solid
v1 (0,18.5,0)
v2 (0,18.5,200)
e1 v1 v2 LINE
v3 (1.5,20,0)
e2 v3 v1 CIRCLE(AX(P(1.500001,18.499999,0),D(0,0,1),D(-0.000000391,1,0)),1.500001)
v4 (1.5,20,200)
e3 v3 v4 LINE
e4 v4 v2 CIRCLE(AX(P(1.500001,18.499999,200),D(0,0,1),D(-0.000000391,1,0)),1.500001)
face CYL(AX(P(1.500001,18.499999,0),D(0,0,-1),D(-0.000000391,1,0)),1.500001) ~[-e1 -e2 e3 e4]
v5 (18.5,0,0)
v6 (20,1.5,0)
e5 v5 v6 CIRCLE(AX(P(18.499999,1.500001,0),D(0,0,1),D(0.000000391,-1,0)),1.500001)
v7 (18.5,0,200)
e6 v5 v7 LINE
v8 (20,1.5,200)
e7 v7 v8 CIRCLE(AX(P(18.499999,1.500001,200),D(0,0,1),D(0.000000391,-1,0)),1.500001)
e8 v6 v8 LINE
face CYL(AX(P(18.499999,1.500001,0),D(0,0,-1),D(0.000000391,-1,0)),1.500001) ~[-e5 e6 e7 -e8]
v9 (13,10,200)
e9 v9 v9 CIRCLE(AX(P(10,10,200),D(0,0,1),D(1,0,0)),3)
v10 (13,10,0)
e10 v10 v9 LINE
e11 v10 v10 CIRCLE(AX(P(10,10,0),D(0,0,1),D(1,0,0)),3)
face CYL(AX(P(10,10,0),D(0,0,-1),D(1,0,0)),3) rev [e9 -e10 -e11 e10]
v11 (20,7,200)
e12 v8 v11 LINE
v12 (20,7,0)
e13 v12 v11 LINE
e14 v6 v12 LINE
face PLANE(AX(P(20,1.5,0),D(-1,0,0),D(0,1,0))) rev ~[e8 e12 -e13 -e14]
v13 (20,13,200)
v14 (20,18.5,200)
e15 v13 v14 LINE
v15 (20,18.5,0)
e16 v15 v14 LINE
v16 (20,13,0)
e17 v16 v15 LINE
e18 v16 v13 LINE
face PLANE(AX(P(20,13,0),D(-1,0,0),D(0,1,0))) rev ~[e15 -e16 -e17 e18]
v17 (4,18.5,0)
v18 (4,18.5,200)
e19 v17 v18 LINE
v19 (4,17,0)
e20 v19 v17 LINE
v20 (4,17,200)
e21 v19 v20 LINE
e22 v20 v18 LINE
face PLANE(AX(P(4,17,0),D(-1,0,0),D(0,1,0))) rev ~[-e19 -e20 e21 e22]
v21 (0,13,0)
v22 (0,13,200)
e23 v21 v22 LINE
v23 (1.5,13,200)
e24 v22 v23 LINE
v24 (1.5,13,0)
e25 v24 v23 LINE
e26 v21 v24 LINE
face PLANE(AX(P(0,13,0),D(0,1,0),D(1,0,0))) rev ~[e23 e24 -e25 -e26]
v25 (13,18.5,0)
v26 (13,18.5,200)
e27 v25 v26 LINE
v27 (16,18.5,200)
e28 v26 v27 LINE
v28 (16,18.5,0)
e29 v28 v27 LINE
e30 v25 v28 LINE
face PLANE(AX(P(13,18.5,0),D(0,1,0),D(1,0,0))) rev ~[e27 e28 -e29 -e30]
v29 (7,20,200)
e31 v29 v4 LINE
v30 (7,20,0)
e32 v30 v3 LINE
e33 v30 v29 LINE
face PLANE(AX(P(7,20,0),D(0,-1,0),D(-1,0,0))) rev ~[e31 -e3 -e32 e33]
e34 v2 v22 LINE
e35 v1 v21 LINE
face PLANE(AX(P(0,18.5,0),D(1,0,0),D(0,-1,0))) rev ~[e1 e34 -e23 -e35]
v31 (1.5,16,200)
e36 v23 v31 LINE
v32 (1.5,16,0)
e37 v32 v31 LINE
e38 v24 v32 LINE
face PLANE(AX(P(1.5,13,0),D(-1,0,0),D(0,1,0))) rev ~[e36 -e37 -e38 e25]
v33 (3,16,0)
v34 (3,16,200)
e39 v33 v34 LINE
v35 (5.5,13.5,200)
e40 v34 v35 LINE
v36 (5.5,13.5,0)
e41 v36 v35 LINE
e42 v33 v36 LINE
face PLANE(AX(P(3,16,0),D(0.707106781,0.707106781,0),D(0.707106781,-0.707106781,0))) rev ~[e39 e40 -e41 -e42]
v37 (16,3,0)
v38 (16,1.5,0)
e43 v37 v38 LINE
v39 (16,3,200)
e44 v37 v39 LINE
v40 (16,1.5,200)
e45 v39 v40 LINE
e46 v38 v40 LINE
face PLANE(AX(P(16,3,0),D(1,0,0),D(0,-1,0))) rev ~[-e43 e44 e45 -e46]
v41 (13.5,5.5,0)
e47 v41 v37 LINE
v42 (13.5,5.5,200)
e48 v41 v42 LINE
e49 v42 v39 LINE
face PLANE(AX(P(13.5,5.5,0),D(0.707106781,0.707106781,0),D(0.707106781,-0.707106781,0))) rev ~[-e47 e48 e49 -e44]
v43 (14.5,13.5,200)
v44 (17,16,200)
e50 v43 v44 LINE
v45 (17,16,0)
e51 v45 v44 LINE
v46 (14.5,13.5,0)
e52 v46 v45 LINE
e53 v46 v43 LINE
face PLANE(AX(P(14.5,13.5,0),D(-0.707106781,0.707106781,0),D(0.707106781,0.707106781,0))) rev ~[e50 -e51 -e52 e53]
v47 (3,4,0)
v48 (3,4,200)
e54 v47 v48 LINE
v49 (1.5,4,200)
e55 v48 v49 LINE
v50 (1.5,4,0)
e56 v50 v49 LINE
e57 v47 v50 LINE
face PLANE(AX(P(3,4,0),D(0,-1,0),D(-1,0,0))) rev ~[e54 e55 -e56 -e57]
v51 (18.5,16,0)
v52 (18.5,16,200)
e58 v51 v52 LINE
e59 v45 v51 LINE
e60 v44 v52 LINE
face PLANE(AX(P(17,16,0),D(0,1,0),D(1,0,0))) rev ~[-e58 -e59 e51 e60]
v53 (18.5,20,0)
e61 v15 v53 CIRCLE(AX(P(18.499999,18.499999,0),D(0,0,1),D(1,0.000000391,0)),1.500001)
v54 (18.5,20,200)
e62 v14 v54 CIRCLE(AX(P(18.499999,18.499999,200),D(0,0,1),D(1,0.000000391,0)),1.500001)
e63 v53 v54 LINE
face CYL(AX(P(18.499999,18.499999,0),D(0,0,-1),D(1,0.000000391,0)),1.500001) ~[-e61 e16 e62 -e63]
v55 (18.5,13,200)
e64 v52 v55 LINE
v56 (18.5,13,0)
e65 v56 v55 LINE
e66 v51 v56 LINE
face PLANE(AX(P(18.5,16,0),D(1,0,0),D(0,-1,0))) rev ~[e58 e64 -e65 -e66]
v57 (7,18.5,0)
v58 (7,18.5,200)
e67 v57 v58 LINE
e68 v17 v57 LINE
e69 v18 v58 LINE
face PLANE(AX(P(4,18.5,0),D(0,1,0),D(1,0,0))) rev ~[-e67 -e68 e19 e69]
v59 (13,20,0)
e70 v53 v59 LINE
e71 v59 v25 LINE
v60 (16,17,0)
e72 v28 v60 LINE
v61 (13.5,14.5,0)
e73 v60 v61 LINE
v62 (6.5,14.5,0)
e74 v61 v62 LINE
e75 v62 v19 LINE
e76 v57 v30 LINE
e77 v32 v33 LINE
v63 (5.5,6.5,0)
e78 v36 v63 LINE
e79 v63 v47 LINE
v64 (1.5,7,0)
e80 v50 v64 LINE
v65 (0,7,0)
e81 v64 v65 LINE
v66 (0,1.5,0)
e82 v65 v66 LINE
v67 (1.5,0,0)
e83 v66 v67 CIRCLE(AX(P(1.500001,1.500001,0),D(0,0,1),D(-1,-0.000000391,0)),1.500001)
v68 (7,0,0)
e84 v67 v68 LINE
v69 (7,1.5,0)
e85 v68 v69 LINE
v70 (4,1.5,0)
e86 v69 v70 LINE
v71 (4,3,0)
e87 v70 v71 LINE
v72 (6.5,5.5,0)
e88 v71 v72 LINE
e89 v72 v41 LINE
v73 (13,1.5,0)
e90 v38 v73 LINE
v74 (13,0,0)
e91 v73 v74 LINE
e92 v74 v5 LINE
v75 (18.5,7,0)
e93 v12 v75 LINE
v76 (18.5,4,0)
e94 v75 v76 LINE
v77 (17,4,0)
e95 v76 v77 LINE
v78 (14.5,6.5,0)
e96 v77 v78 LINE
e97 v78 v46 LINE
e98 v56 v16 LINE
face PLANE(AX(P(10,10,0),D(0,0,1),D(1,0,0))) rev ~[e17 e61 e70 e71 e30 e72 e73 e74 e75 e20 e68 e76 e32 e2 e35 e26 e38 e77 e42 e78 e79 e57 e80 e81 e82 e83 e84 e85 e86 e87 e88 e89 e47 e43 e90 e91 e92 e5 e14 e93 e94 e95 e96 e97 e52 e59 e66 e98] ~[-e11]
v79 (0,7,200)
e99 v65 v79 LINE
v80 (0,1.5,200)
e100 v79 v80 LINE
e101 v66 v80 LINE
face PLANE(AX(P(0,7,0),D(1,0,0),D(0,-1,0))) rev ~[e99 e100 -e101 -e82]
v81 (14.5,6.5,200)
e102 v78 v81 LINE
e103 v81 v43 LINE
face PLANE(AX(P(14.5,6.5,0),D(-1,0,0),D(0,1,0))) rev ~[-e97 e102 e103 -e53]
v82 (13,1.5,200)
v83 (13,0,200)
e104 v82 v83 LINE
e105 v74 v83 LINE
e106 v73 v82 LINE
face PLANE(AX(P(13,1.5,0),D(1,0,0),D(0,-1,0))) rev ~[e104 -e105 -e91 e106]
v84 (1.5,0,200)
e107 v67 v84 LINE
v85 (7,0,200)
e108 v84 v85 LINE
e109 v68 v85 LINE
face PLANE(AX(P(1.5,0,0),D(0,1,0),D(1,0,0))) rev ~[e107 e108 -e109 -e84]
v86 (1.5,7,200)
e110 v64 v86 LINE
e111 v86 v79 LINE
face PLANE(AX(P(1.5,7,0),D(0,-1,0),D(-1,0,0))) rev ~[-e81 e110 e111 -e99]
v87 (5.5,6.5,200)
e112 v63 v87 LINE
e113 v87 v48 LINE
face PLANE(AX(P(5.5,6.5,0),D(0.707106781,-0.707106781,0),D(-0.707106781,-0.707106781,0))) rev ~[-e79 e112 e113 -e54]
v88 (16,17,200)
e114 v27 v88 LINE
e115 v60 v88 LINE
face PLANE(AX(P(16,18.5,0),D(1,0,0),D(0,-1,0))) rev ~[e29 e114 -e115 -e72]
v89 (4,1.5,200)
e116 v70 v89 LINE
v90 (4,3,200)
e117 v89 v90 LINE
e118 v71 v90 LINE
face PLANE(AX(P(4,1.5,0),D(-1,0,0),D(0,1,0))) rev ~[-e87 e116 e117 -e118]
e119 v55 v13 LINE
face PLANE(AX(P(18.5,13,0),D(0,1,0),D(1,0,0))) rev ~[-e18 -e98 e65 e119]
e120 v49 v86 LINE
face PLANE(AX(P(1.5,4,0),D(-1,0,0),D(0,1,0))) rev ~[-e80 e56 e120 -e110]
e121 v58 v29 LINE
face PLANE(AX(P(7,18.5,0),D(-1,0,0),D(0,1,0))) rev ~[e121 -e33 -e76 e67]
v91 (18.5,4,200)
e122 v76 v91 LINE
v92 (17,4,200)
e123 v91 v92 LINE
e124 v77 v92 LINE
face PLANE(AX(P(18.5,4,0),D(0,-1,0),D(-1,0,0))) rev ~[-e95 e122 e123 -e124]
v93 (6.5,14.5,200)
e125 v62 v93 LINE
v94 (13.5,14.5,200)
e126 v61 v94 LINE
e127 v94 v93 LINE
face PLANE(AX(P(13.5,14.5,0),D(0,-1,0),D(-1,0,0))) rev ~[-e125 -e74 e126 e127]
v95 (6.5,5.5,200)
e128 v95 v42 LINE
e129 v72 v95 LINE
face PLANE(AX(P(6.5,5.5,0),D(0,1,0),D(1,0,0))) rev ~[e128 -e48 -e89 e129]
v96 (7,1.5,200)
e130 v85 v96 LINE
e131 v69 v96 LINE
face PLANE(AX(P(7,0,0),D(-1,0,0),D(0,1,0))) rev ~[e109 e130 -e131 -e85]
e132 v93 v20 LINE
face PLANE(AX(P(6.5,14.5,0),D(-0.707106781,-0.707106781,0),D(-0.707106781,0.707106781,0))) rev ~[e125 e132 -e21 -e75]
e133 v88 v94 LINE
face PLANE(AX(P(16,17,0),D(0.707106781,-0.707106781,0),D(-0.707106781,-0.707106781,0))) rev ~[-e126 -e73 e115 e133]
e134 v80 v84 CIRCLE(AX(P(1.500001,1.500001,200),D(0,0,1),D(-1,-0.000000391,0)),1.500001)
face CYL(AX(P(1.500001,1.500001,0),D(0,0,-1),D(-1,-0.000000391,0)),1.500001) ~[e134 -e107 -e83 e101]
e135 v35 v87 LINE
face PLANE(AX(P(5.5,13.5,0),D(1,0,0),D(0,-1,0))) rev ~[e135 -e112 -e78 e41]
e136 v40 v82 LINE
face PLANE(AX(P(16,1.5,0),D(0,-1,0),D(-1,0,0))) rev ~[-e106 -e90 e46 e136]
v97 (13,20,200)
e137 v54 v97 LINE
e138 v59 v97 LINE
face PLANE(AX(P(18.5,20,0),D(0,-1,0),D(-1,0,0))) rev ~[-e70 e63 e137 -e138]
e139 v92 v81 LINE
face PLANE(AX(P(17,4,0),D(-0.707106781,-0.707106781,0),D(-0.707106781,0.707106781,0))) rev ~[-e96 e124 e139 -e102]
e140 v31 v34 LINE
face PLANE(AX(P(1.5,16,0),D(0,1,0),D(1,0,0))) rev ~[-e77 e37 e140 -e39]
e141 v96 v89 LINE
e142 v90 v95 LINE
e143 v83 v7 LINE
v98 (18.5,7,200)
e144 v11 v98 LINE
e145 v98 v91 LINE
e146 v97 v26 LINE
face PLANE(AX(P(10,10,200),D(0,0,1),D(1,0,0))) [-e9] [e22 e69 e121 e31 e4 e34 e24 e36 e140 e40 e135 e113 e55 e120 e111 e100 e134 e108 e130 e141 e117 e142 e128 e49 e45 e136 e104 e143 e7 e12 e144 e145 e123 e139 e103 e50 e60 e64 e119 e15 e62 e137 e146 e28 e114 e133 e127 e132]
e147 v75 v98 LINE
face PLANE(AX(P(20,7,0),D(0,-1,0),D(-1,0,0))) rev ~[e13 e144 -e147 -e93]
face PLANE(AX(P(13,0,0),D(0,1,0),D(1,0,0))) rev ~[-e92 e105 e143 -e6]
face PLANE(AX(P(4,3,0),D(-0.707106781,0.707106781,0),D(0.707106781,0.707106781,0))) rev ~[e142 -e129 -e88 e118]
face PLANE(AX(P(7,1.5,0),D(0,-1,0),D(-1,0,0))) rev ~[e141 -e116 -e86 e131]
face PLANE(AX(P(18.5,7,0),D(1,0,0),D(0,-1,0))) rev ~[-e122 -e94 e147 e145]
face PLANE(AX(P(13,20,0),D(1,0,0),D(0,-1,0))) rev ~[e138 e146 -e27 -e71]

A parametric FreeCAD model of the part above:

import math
import FreeCAD as App
import Part
import Sketcher
from FreeCAD import Vector

doc = App.newDocument("Part")
body = doc.addObject("PartDesign::Body", "Body")

# Sketch on XY plane
sketch1 = doc.addObject("Sketcher::SketchObject", "Sketch")
body.addObject(sketch1)
sketch1.AttachmentSupport = (doc.XY_Plane, [""])
sketch1.MapMode = "FlatFace"
sketch1.addGeometry(Part.ArcOfCircle(Part.Circle(Vector(1.500001, 1.500001, 0), Vector(0, 0, 1), 1.500001), math.radians(-179.999978), math.radians(-90.000022)), False)
sketch1.addGeometry(Part.LineSegment(Vector(1.5, 0, 0), Vector(7, 0, 0)), False)
sketch1.addGeometry(Part.LineSegment(Vector(7, 0, 0), Vector(7, 1.5, 0)), False)
sketch1.addGeometry(Part.LineSegment(Vector(7, 1.5, 0), Vector(4, 1.5, 0)), False)
sketch1.addGeometry(Part.LineSegment(Vector(4, 1.5, 0), Vector(4, 3, 0)), False)
sketch1.addGeometry(Part.LineSegment(Vector(4, 3, 0), Vector(6.5, 5.5, 0)), False)
sketch1.addGeometry(Part.LineSegment(Vector(6.5, 5.5, 0), Vector(13.5, 5.5, 0)), False)
sketch1.addGeometry(Part.LineSegment(Vector(13.5, 5.5, 0), Vector(16, 3, 0)), False)
sketch1.addGeometry(Part.LineSegment(Vector(16, 3, 0), Vector(16, 1.5, 0)), False)
sketch1.addGeometry(Part.LineSegment(Vector(16, 1.5, 0), Vector(13, 1.5, 0)), False)
sketch1.addGeometry(Part.LineSegment(Vector(13, 1.5, 0), Vector(13, 0, 0)), False)
sketch1.addGeometry(Part.LineSegment(Vector(13, 0, 0), Vector(18.5, 0, 0)), False)
sketch1.addGeometry(Part.ArcOfCircle(Part.Circle(Vector(18.499999, 1.500001, 0), Vector(0, 0, 1), 1.500001), math.radians(-89.999978), math.radians(-0.000022)), False)
sketch1.addGeometry(Part.LineSegment(Vector(20, 1.5, 0), Vector(20, 7, 0)), False)
sketch1.addGeometry(Part.LineSegment(Vector(20, 7, 0), Vector(18.5, 7, 0)), False)
sketch1.addGeometry(Part.LineSegment(Vector(18.5, 7, 0), Vector(18.5, 4, 0)), False)
sketch1.addGeometry(Part.LineSegment(Vector(18.5, 4, 0), Vector(17, 4, 0)), False)
sketch1.addGeometry(Part.LineSegment(Vector(17, 4, 0), Vector(14.5, 6.5, 0)), False)
sketch1.addGeometry(Part.LineSegment(Vector(14.5, 6.5, 0), Vector(14.5, 13.5, 0)), False)
sketch1.addGeometry(Part.LineSegment(Vector(14.5, 13.5, 0), Vector(17, 16, 0)), False)
sketch1.addGeometry(Part.LineSegment(Vector(17, 16, 0), Vector(18.5, 16, 0)), False)
sketch1.addGeometry(Part.LineSegment(Vector(18.5, 16, 0), Vector(18.5, 13, 0)), False)
sketch1.addGeometry(Part.LineSegment(Vector(18.5, 13, 0), Vector(20, 13, 0)), False)
sketch1.addGeometry(Part.LineSegment(Vector(20, 13, 0), Vector(20, 18.5, 0)), False)
sketch1.addGeometry(Part.ArcOfCircle(Part.Circle(Vector(18.499999, 18.499999, 0), Vector(0, 0, 1), 1.500001), math.radians(0.000022), math.radians(89.999978)), False)
sketch1.addGeometry(Part.LineSegment(Vector(18.5, 20, 0), Vector(13, 20, 0)), False)
sketch1.addGeometry(Part.LineSegment(Vector(13, 20, 0), Vector(13, 18.5, 0)), False)
sketch1.addGeometry(Part.LineSegment(Vector(13, 18.5, 0), Vector(16, 18.5, 0)), False)
sketch1.addGeometry(Part.LineSegment(Vector(16, 18.5, 0), Vector(16, 17, 0)), False)
sketch1.addGeometry(Part.LineSegment(Vector(16, 17, 0), Vector(13.5, 14.5, 0)), False)
sketch1.addGeometry(Part.LineSegment(Vector(13.5, 14.5, 0), Vector(6.5, 14.5, 0)), False)
sketch1.addGeometry(Part.LineSegment(Vector(6.5, 14.5, 0), Vector(4, 17, 0)), False)
sketch1.addGeometry(Part.LineSegment(Vector(4, 17, 0), Vector(4, 18.5, 0)), False)
sketch1.addGeometry(Part.LineSegment(Vector(4, 18.5, 0), Vector(7, 18.5, 0)), False)
sketch1.addGeometry(Part.LineSegment(Vector(7, 18.5, 0), Vector(7, 20, 0)), False)
sketch1.addGeometry(Part.LineSegment(Vector(7, 20, 0), Vector(1.5, 20, 0)), False)
sketch1.addGeometry(Part.ArcOfCircle(Part.Circle(Vector(1.500001, 18.499999, 0), Vector(0, 0, 1), 1.500001), math.radians(90.000022), math.radians(179.999978)), False)
sketch1.addGeometry(Part.LineSegment(Vector(0, 18.5, 0), Vector(0, 13, 0)), False)
sketch1.addGeometry(Part.LineSegment(Vector(0, 13, 0), Vector(1.5, 13, 0)), False)
sketch1.addGeometry(Part.LineSegment(Vector(1.5, 13, 0), Vector(1.5, 16, 0)), False)
sketch1.addGeometry(Part.LineSegment(Vector(1.5, 16, 0), Vector(3, 16, 0)), False)
sketch1.addGeometry(Part.LineSegment(Vector(3, 16, 0), Vector(5.5, 13.5, 0)), False)
sketch1.addGeometry(Part.LineSegment(Vector(5.5, 13.5, 0), Vector(5.5, 6.5, 0)), False)
sketch1.addGeometry(Part.LineSegment(Vector(5.5, 6.5, 0), Vector(3, 4, 0)), False)
sketch1.addGeometry(Part.LineSegment(Vector(3, 4, 0), Vector(1.5, 4, 0)), False)
sketch1.addGeometry(Part.LineSegment(Vector(1.5, 4, 0), Vector(1.5, 7, 0)), False)
sketch1.addGeometry(Part.LineSegment(Vector(1.5, 7, 0), Vector(0, 7, 0)), False)
sketch1.addGeometry(Part.LineSegment(Vector(0, 7, 0), Vector(0, 1.5, 0)), False)
sketch1.addGeometry(Part.Circle(Vector(10, 10, 0), Vector(0, 0, 1), 3), False)
sketch1.addConstraint(Sketcher.Constraint("Tangent", 0, 2, 1, 1))
sketch1.addConstraint(Sketcher.Constraint("Coincident", 1, 2, 2, 1))
sketch1.addConstraint(Sketcher.Constraint("Coincident", 2, 2, 3, 1))
sketch1.addConstraint(Sketcher.Constraint("Coincident", 3, 2, 4, 1))
sketch1.addConstraint(Sketcher.Constraint("Coincident", 4, 2, 5, 1))
sketch1.addConstraint(Sketcher.Constraint("Coincident", 5, 2, 6, 1))
sketch1.addConstraint(Sketcher.Constraint("Coincident", 6, 2, 7, 1))
sketch1.addConstraint(Sketcher.Constraint("Coincident", 7, 2, 8, 1))
sketch1.addConstraint(Sketcher.Constraint("Coincident", 8, 2, 9, 1))
sketch1.addConstraint(Sketcher.Constraint("Coincident", 9, 2, 10, 1))
sketch1.addConstraint(Sketcher.Constraint("Coincident", 10, 2, 11, 1))
sketch1.addConstraint(Sketcher.Constraint("Tangent", 11, 2, 12, 1))
sketch1.addConstraint(Sketcher.Constraint("Tangent", 12, 2, 13, 1))
sketch1.addConstraint(Sketcher.Constraint("Coincident", 13, 2, 14, 1))
sketch1.addConstraint(Sketcher.Constraint("Coincident", 14, 2, 15, 1))
sketch1.addConstraint(Sketcher.Constraint("Coincident", 15, 2, 16, 1))
sketch1.addConstraint(Sketcher.Constraint("Coincident", 16, 2, 17, 1))
sketch1.addConstraint(Sketcher.Constraint("Coincident", 17, 2, 18, 1))
sketch1.addConstraint(Sketcher.Constraint("Coincident", 18, 2, 19, 1))
sketch1.addConstraint(Sketcher.Constraint("Coincident", 19, 2, 20, 1))
sketch1.addConstraint(Sketcher.Constraint("Coincident", 20, 2, 21, 1))
sketch1.addConstraint(Sketcher.Constraint("Coincident", 21, 2, 22, 1))
sketch1.addConstraint(Sketcher.Constraint("Coincident", 22, 2, 23, 1))
sketch1.addConstraint(Sketcher.Constraint("Tangent", 23, 2, 24, 1))
sketch1.addConstraint(Sketcher.Constraint("Tangent", 24, 2, 25, 1))
sketch1.addConstraint(Sketcher.Constraint("Coincident", 25, 2, 26, 1))
sketch1.addConstraint(Sketcher.Constraint("Coincident", 26, 2, 27, 1))
sketch1.addConstraint(Sketcher.Constraint("Coincident", 27, 2, 28, 1))
sketch1.addConstraint(Sketcher.Constraint("Coincident", 28, 2, 29, 1))
sketch1.addConstraint(Sketcher.Constraint("Coincident", 29, 2, 30, 1))
sketch1.addConstraint(Sketcher.Constraint("Coincident", 30, 2, 31, 1))
sketch1.addConstraint(Sketcher.Constraint("Coincident", 31, 2, 32, 1))
sketch1.addConstraint(Sketcher.Constraint("Coincident", 32, 2, 33, 1))
sketch1.addConstraint(Sketcher.Constraint("Coincident", 33, 2, 34, 1))
sketch1.addConstraint(Sketcher.Constraint("Coincident", 34, 2, 35, 1))
sketch1.addConstraint(Sketcher.Constraint("Tangent", 35, 2, 36, 1))
sketch1.addConstraint(Sketcher.Constraint("Tangent", 36, 2, 37, 1))
sketch1.addConstraint(Sketcher.Constraint("Coincident", 37, 2, 38, 1))
sketch1.addConstraint(Sketcher.Constraint("Coincident", 38, 2, 39, 1))
sketch1.addConstraint(Sketcher.Constraint("Coincident", 39, 2, 40, 1))
sketch1.addConstraint(Sketcher.Constraint("Coincident", 40, 2, 41, 1))
sketch1.addConstraint(Sketcher.Constraint("Coincident", 41, 2, 42, 1))
sketch1.addConstraint(Sketcher.Constraint("Coincident", 42, 2, 43, 1))
sketch1.addConstraint(Sketcher.Constraint("Coincident", 43, 2, 44, 1))
sketch1.addConstraint(Sketcher.Constraint("Coincident", 44, 2, 45, 1))
sketch1.addConstraint(Sketcher.Constraint("Coincident", 45, 2, 46, 1))
sketch1.addConstraint(Sketcher.Constraint("Coincident", 46, 2, 47, 1))
sketch1.addConstraint(Sketcher.Constraint("Tangent", 47, 2, 0, 1))
sketch1.addConstraint(Sketcher.Constraint("Horizontal", 1))
sketch1.addConstraint(Sketcher.Constraint("Vertical", 2))
sketch1.addConstraint(Sketcher.Constraint("Horizontal", 3))
sketch1.addConstraint(Sketcher.Constraint("Vertical", 4))
sketch1.addConstraint(Sketcher.Constraint("Horizontal", 6))
sketch1.addConstraint(Sketcher.Constraint("Vertical", 8))
sketch1.addConstraint(Sketcher.Constraint("Horizontal", 9))
sketch1.addConstraint(Sketcher.Constraint("Vertical", 10))
sketch1.addConstraint(Sketcher.Constraint("Horizontal", 11))
sketch1.addConstraint(Sketcher.Constraint("Vertical", 13))
sketch1.addConstraint(Sketcher.Constraint("Horizontal", 14))
sketch1.addConstraint(Sketcher.Constraint("Vertical", 15))
sketch1.addConstraint(Sketcher.Constraint("Horizontal", 16))
sketch1.addConstraint(Sketcher.Constraint("Vertical", 18))
sketch1.addConstraint(Sketcher.Constraint("Horizontal", 20))
sketch1.addConstraint(Sketcher.Constraint("Vertical", 21))
sketch1.addConstraint(Sketcher.Constraint("Horizontal", 22))
sketch1.addConstraint(Sketcher.Constraint("Vertical", 23))
sketch1.addConstraint(Sketcher.Constraint("Horizontal", 25))
sketch1.addConstraint(Sketcher.Constraint("Vertical", 26))
sketch1.addConstraint(Sketcher.Constraint("Horizontal", 27))
sketch1.addConstraint(Sketcher.Constraint("Vertical", 28))
sketch1.addConstraint(Sketcher.Constraint("Horizontal", 30))
sketch1.addConstraint(Sketcher.Constraint("Vertical", 32))
sketch1.addConstraint(Sketcher.Constraint("Horizontal", 33))
sketch1.addConstraint(Sketcher.Constraint("Vertical", 34))
sketch1.addConstraint(Sketcher.Constraint("Horizontal", 35))
sketch1.addConstraint(Sketcher.Constraint("Vertical", 37))
sketch1.addConstraint(Sketcher.Constraint("Horizontal", 38))
sketch1.addConstraint(Sketcher.Constraint("Vertical", 39))
sketch1.addConstraint(Sketcher.Constraint("Horizontal", 40))
sketch1.addConstraint(Sketcher.Constraint("Vertical", 42))
sketch1.addConstraint(Sketcher.Constraint("Horizontal", 44))
sketch1.addConstraint(Sketcher.Constraint("Vertical", 45))
sketch1.addConstraint(Sketcher.Constraint("Horizontal", 46))
sketch1.addConstraint(Sketcher.Constraint("Vertical", 47))
sketch1.addConstraint(Sketcher.Constraint("Equal", 0, 12))
sketch1.addConstraint(Sketcher.Constraint("Equal", 12, 24))
sketch1.addConstraint(Sketcher.Constraint("Equal", 24, 36))
sketch1.addConstraint(Sketcher.Constraint("PointOnObject", 0, 2, -1))
sketch1.addConstraint(Sketcher.Constraint("PointOnObject", 10, 2, -1))
sketch1.addConstraint(Sketcher.Constraint("PointOnObject", 36, 2, -2))
sketch1.addConstraint(Sketcher.Constraint("PointOnObject", 46, 2, -2))
sketch1.addConstraint(Sketcher.Constraint("Perpendicular", 5, 7))
sketch1.addConstraint(Sketcher.Constraint("Parallel", 7, 17))
sketch1.addConstraint(Sketcher.Constraint("Perpendicular", 17, 19))
sketch1.addConstraint(Sketcher.Constraint("Parallel", 19, 29))
sketch1.addConstraint(Sketcher.Constraint("Perpendicular", 29, 31))
sketch1.addConstraint(Sketcher.Constraint("Parallel", 31, 41))
sketch1.addConstraint(Sketcher.Constraint("Perpendicular", 41, 43))
sketch1.addConstraint(Sketcher.Constraint("Horizontal", 24, 3, 36, 3))
sketch1.addConstraint(Sketcher.Constraint("Horizontal", 12, 3, 2, 2))
sketch1.addConstraint(Sketcher.Constraint("Horizontal", 4, 2, 7, 2))
sketch1.addConstraint(Sketcher.Constraint("Horizontal", 3, 2, 8, 2))
sketch1.addConstraint(Sketcher.Constraint("Horizontal", 23, 2, 26, 2))
sketch1.addConstraint(Sketcher.Constraint("Horizontal", 28, 2, 31, 2))
sketch1.addConstraint(Sketcher.Constraint("Horizontal", 27, 2, 32, 2))
sketch1.addConstraint(Sketcher.Constraint("Horizontal", 22, 2, 37, 2))
sketch1.addConstraint(Sketcher.Constraint("Horizontal", 20, 2, 39, 2))
sketch1.addConstraint(Sketcher.Constraint("Horizontal", 18, 2, 41, 2))
sketch1.addConstraint(Sketcher.Constraint("Horizontal", 17, 2, 42, 2))
sketch1.addConstraint(Sketcher.Constraint("Horizontal", 16, 2, 43, 2))
sketch1.addConstraint(Sketcher.Constraint("Horizontal", 14, 2, 45, 2))
sketch1.addConstraint(Sketcher.Constraint("Vertical", 12, 3, 24, 3))
sketch1.addConstraint(Sketcher.Constraint("Vertical", 11, 2, 14, 2))
sketch1.addConstraint(Sketcher.Constraint("Vertical", 16, 2, 19, 2))
sketch1.addConstraint(Sketcher.Constraint("Vertical", 15, 2, 20, 2))
sketch1.addConstraint(Sketcher.Constraint("Vertical", 10, 2, 25, 2))
sketch1.addConstraint(Sketcher.Constraint("Vertical", 8, 2, 27, 2))
sketch1.addConstraint(Sketcher.Constraint("Vertical", 6, 2, 29, 2))
sketch1.addConstraint(Sketcher.Constraint("Vertical", 5, 2, 30, 2))
sketch1.addConstraint(Sketcher.Constraint("Vertical", 4, 2, 31, 2))
sketch1.addConstraint(Sketcher.Constraint("Vertical", 2, 2, 33, 2))
sketch1.addConstraint(Sketcher.Constraint("Vertical", 35, 2, 38, 2))
sketch1.addConstraint(Sketcher.Constraint("Vertical", 39, 2, 44, 2))
sketch1.addConstraint(Sketcher.Constraint("Equal", 3, 9))
sketch1.addConstraint(Sketcher.Constraint("Equal", 1, 11))
sketch1.addConstraint(Sketcher.Constraint("Equal", 14, 16))
sketch1.addConstraint(Sketcher.Constraint("Equal", 38, 40))
sketch1.addConstraint(Sketcher.Constraint("Equal", 2, 4))
sketch1.addConstraint(Sketcher.Constraint("Equal", 35, 13))
sketch1.addConstraint(Sketcher.Constraint("Equal", 33, 15))
sketch1.addConstraint(Sketcher.Constraint("Equal", 30, 18))
sketch1.addConstraint(Sketcher.Constraint("Equal", 15, 21))
sketch1.addConstraint(Sketcher.Constraint("Equal", 13, 23))
sketch1.addConstraint(Sketcher.Constraint("Equal", 26, 28))
sketch1.addConstraint(Sketcher.Constraint("Equal", 7, 17))
sketch1.addConstraint(Sketcher.Constraint("Diameter", 48, 6.0))
sketch1.addConstraint(Sketcher.Constraint("Radius", 0, 1.500001))
sketch1.addConstraint(Sketcher.Constraint("DistanceX", 3, 2, 3, 1, 3.0))
sketch1.addConstraint(Sketcher.Constraint("DistanceX", 6, 1, 6, 2, 7.0))
sketch1.addConstraint(Sketcher.Constraint("DistanceX", 1, 1, 1, 2, 5.5))
sketch1.addConstraint(Sketcher.Constraint("DistanceX", -1, 1, 48, 3, 10.0))
sketch1.addConstraint(Sketcher.Constraint("DistanceY", -1, 1, 48, 3, 10.0))
sketch1.addConstraint(Sketcher.Constraint("DistanceX", -1, 1, 7, 2, 16.0))
pad1 = doc.addObject("PartDesign::Pad", "Pad")
body.addObject(pad1)
pad1.Profile = sketch1
pad1.Length = 200

doc.recompute()
